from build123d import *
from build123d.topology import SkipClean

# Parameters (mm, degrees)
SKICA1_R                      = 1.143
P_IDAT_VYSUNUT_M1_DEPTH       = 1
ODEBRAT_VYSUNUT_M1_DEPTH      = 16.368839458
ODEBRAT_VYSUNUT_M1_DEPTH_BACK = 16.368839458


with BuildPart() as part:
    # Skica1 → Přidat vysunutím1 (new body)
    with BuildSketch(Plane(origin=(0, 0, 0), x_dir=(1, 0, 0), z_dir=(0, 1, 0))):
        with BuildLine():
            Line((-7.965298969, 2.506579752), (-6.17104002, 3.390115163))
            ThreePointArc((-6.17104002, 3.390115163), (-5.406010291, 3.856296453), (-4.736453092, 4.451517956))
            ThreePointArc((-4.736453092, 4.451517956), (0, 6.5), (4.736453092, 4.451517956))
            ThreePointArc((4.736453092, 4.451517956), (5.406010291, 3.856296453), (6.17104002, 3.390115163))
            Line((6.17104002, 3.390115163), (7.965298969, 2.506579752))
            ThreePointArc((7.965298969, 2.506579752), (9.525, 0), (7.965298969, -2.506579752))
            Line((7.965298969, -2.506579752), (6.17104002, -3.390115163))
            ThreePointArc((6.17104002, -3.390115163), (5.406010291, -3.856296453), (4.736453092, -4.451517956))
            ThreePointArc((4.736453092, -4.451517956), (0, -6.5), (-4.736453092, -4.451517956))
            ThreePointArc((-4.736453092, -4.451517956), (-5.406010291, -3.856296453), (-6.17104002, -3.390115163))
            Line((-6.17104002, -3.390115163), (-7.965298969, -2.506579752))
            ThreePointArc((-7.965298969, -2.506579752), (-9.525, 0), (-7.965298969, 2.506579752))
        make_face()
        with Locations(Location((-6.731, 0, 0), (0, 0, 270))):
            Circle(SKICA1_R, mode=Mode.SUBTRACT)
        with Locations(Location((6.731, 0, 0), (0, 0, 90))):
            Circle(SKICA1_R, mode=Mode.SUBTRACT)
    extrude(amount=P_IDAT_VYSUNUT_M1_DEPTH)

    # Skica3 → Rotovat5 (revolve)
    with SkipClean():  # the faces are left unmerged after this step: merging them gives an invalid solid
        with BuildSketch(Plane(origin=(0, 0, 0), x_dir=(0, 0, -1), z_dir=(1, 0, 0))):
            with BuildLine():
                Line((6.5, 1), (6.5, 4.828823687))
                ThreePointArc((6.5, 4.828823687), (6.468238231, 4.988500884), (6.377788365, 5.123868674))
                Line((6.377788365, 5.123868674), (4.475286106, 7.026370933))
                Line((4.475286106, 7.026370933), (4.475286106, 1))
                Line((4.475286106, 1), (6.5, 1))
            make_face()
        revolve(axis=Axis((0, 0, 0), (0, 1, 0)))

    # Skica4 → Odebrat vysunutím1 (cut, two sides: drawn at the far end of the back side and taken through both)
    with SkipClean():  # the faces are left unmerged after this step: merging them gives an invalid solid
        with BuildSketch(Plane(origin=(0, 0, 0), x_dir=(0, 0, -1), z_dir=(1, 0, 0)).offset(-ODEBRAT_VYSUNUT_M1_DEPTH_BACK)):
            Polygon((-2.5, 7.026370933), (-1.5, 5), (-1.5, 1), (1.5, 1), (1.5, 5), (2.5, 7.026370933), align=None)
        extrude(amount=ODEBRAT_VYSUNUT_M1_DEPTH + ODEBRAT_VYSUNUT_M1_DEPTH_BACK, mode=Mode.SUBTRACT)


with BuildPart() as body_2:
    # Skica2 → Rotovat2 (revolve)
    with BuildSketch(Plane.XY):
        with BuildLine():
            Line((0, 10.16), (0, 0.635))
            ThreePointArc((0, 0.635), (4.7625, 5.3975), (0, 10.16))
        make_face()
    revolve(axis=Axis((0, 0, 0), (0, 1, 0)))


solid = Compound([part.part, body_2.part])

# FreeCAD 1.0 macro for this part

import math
import FreeCAD as App
import Part
import Sketcher
from FreeCAD import Vector
Q = App.Units.Quantity

doc = App.newDocument("Part")
body = doc.addObject("PartDesign::Body", "Body")

# Sketch on XZ plane
sketch1 = body.newObject("Sketcher::SketchObject", "Sketch")
sketch1.AttachmentSupport = (doc.getObject("XZ_Plane"), [""])
sketch1.MapMode = "FlatFace"
sketch1.addGeometry([
    Part.LineSegment(Vector(-6.17104, -3.390115, 0), Vector(-7.965299, -2.50658, 0)),  # 0
    Part.ArcOfCircle(Part.Circle(Vector(-6.731, 0, 0), Vector(0, 0, 1), 2.794), math.radians(116.216722), math.radians(243.783278)),  # 1
    Part.LineSegment(Vector(-7.965299, 2.50658, 0), Vector(-6.17104, 3.390115, 0)),  # 2
    Part.ArcOfCircle(Part.Circle(Vector(-8.379879, 7.875763, 0), Vector(0, 0, 1), 5), math.radians(-63.783278), math.radians(-43.223726)),  # 3
    Part.ArcOfCircle(Part.Circle(Vector(0, 0, 0), Vector(0, 0, 1), 6.5), math.radians(43.223726), math.radians(136.776274)),  # 4
    Part.ArcOfCircle(Part.Circle(Vector(8.379879, 7.875763, 0), Vector(0, 0, 1), 5), math.radians(-136.776274), math.radians(-116.216722)),  # 5
    Part.LineSegment(Vector(6.17104, 3.390115, 0), Vector(7.965299, 2.50658, 0)),  # 6
    Part.ArcOfCircle(Part.Circle(Vector(6.731, 0, 0), Vector(0, 0, 1), 2.794), math.radians(-63.783278), math.radians(63.783278)),  # 7
    Part.LineSegment(Vector(7.965299, -2.50658, 0), Vector(6.17104, -3.390115, 0)),  # 8
    Part.ArcOfCircle(Part.Circle(Vector(8.379879, -7.875763, 0), Vector(0, 0, 1), 5), math.radians(116.216722), math.radians(136.776274)),  # 9
    Part.ArcOfCircle(Part.Circle(Vector(0, 0, 0), Vector(0, 0, 1), 6.5), math.radians(-136.776274), math.radians(-43.223726)),  # 10
    Part.ArcOfCircle(Part.Circle(Vector(-8.379879, -7.875763, 0), Vector(0, 0, 1), 5), math.radians(43.223726), math.radians(63.783278)),  # 11
    Part.Circle(Vector(6.731, 0, 0), Vector(0, 0, 1), 1.143),  # 12
    Part.Circle(Vector(-6.731, 0, 0), Vector(0, 0, 1), 1.143),  # 13
], False)
sketch1.addConstraint([
    Sketcher.Constraint("Tangent", 0, 2, 1, 2),
    Sketcher.Constraint("Tangent", 1, 1, 2, 1),
    Sketcher.Constraint("Tangent", 2, 2, 3, 1),
    Sketcher.Constraint("Tangent", 3, 2, 4, 2),
    Sketcher.Constraint("Tangent", 4, 1, 5, 1),
    Sketcher.Constraint("Tangent", 5, 2, 6, 1),
    Sketcher.Constraint("Tangent", 6, 2, 7, 2),
    Sketcher.Constraint("Tangent", 7, 1, 8, 1),
    Sketcher.Constraint("Tangent", 8, 2, 9, 1),
    Sketcher.Constraint("Tangent", 9, 2, 10, 2),
    Sketcher.Constraint("Tangent", 10, 1, 11, 1),
    Sketcher.Constraint("Tangent", 11, 2, 0, 1),
    Sketcher.Constraint("Coincident", 4, 3, -1, 1),
    Sketcher.Constraint("Coincident", 10, 3, -1, 1),
    Sketcher.Constraint("Coincident", 12, 3, 7, 3),
    Sketcher.Constraint("Coincident", 13, 3, 1, 3),
    Sketcher.Constraint("Equal", 3, 5),
    Sketcher.Constraint("Equal", 1, 7),
    Sketcher.Constraint("Equal", 5, 9),
    Sketcher.Constraint("Equal", 4, 10),
    Sketcher.Constraint("Equal", 9, 11),
    Sketcher.Constraint("Equal", 12, 13),
    Sketcher.Constraint("Symmetric", 1, 3, 7, 3, -1, 1),
    Sketcher.Constraint("Symmetric", 2, 2, 5, 2, -2),
    Sketcher.Constraint("Parallel", 0, 6),
    Sketcher.Constraint("Parallel", 2, 8),
    Sketcher.Constraint("Radius", 3, Q("5 mm")),
    Sketcher.Constraint("Radius", 4, Q("6.5 mm")),
    Sketcher.Constraint("Distance", 0, Q("2 mm")),
    Sketcher.Constraint("Diameter", 12, Q("2.286 mm")),
    Sketcher.Constraint("Radius", 1, Q("2.794 mm")),
    Sketcher.Constraint("DistanceX", 1, 3, -1, 1, Q("6.731 mm")),
])
pad1 = body.newObject("PartDesign::Pad", "Pad")
pad1.Profile = sketch1
pad1.Length = 1
pad1.Reversed = True

# Sketch on YZ plane
sketch2 = body.newObject("Sketcher::SketchObject", "Sketch001")
sketch2.AttachmentSupport = (doc.getObject("YZ_Plane"), [""])
sketch2.MapMode = "FlatFace"
sketch2.addGeometry([
    Part.LineSegment(Vector(1, -6.5, 0), Vector(4.828824, -6.5, 0)),  # 0
    Part.ArcOfCircle(Part.Circle(Vector(4.828824, -6.082743, 0), Vector(0, 0, 1), 0.417257), math.radians(-90), math.radians(-45)),  # 1
    Part.LineSegment(Vector(5.123869, -6.377788, 0), Vector(7.026371, -4.475286, 0)),  # 2
    Part.LineSegment(Vector(7.026371, -4.475286, 0), Vector(1, -4.475286, 0)),  # 3
    Part.LineSegment(Vector(1, -4.475286, 0), Vector(1, -6.5, 0)),  # 4
], False)
sketch2.addConstraint([
    Sketcher.Constraint("Tangent", 0, 2, 1, 1),
    Sketcher.Constraint("Tangent", 1, 2, 2, 1),
    Sketcher.Constraint("Coincident", 2, 2, 3, 1),
    Sketcher.Constraint("Coincident", 3, 2, 4, 1),
    Sketcher.Constraint("Coincident", 4, 2, 0, 1),
    Sketcher.Constraint("Horizontal", 0),
    Sketcher.Constraint("Horizontal", 3),
    Sketcher.Constraint("Vertical", 4),
    Sketcher.Constraint("Angle", 2, Q("45 deg")),
    Sketcher.Constraint("DistanceX", -1, 1, 3, 2, Q("1 mm")),
    Sketcher.Constraint("DistanceY", 0, 2, -1, 1, Q("6.5 mm")),
    Sketcher.Constraint("Radius", 1, Q("0.417257 mm")),
    Sketcher.Constraint("DistanceX", 3, 2, 3, 1, Q("6.026371 mm")),
    Sketcher.Constraint("DistanceX", 0, 1, 0, 2, Q("3.828824 mm")),
])
revolution = body.newObject("PartDesign::Revolution", "Revolution")
revolution.Profile = sketch2
revolution.ReferenceAxis = (sketch2, ["H_Axis"])
revolution.Angle = 360

# Sketch on YZ plane
sketch3 = body.newObject("Sketcher::SketchObject", "Sketch002")
sketch3.AttachmentSupport = (doc.getObject("YZ_Plane"), [""])
sketch3.MapMode = "FlatFace"
sketch3.addGeometry([
    Part.LineSegment(Vector(7.026371, 2.5, 0), Vector(5, 1.5, 0)),  # 0
    Part.LineSegment(Vector(5, 1.5, 0), Vector(1, 1.5, 0)),  # 1
    Part.LineSegment(Vector(1, 1.5, 0), Vector(1, -1.5, 0)),  # 2
    Part.LineSegment(Vector(1, -1.5, 0), Vector(5, -1.5, 0)),  # 3
    Part.LineSegment(Vector(5, -1.5, 0), Vector(7.026371, -2.5, 0)),  # 4
    Part.LineSegment(Vector(7.026371, -2.5, 0), Vector(7.026371, 2.5, 0)),  # 5
], False)
sketch3.addConstraint([
    Sketcher.Constraint("Coincident", 0, 2, 1, 1),
    Sketcher.Constraint("Coincident", 1, 2, 2, 1),
    Sketcher.Constraint("Coincident", 2, 2, 3, 1),
    Sketcher.Constraint("Coincident", 3, 2, 4, 1),
    Sketcher.Constraint("Coincident", 4, 2, 5, 1),
    Sketcher.Constraint("Coincident", 5, 2, 0, 1),
    Sketcher.Constraint("Horizontal", 1),
    Sketcher.Constraint("Vertical", 2),
    Sketcher.Constraint("Horizontal", 3),
    Sketcher.Constraint("Vertical", 5),
    Sketcher.Constraint("Symmetric", 0, 2, 3, 2, -1),
    Sketcher.Constraint("Equal", 0, 4),
    Sketcher.Constraint("DistanceX", 1, 2, 1, 1, Q("4 mm")),
    Sketcher.Constraint("DistanceY", 2, 2, 2, 1, Q("3 mm")),
    Sketcher.Constraint("DistanceY", 5, 1, 5, 2, Q("5 mm")),
    Sketcher.Constraint("DistanceX", -1, 1, 0, 2, Q("5 mm")),
    Sketcher.Constraint("DistanceX", -1, 1, 4, 2, Q("7.026371 mm")),
])
pocket1 = body.newObject("PartDesign::Pocket", "Pocket")
pocket1.Profile = sketch3
pocket1.Type = "ThroughAll"
pocket1.Midplane = True
body2 = doc.addObject("PartDesign::Body", "Body001")

# Sketch on XY plane
sketch4 = body2.newObject("Sketcher::SketchObject", "Sketch003")
sketch4.AttachmentSupport = (doc.getObject("XY_Plane001"), [""])
sketch4.MapMode = "FlatFace"
sketch4.addGeometry([
    Part.LineSegment(Vector(0, 10.16, 0), Vector(0, 0.635, 0)),
    Part.ArcOfCircle(Part.Circle(Vector(0, 5.3975, 0), Vector(0, 0, 1), 4.7625), math.radians(-90), math.radians(90)),
], False)
sketch4.addConstraint([
    Sketcher.Constraint("Coincident", 0, 1, 1, 2),
    Sketcher.Constraint("Coincident", 1, 1, 0, 2),
    Sketcher.Constraint("Vertical", 0),
    Sketcher.Constraint("PointOnObject", 1, 3, -2),
    Sketcher.Constraint("PointOnObject", 0, 1, -2),
    Sketcher.Constraint("Radius", 1, Q("4.7625 mm")),
    Sketcher.Constraint("DistanceY", -1, 1, 0, 1, Q("10.16 mm")),
])
revolution2 = body2.newObject("PartDesign::Revolution", "Revolution001")
revolution2.Profile = sketch4
revolution2.ReferenceAxis = (sketch4, ["V_Axis"])
revolution2.Angle = 360

doc.recompute()
